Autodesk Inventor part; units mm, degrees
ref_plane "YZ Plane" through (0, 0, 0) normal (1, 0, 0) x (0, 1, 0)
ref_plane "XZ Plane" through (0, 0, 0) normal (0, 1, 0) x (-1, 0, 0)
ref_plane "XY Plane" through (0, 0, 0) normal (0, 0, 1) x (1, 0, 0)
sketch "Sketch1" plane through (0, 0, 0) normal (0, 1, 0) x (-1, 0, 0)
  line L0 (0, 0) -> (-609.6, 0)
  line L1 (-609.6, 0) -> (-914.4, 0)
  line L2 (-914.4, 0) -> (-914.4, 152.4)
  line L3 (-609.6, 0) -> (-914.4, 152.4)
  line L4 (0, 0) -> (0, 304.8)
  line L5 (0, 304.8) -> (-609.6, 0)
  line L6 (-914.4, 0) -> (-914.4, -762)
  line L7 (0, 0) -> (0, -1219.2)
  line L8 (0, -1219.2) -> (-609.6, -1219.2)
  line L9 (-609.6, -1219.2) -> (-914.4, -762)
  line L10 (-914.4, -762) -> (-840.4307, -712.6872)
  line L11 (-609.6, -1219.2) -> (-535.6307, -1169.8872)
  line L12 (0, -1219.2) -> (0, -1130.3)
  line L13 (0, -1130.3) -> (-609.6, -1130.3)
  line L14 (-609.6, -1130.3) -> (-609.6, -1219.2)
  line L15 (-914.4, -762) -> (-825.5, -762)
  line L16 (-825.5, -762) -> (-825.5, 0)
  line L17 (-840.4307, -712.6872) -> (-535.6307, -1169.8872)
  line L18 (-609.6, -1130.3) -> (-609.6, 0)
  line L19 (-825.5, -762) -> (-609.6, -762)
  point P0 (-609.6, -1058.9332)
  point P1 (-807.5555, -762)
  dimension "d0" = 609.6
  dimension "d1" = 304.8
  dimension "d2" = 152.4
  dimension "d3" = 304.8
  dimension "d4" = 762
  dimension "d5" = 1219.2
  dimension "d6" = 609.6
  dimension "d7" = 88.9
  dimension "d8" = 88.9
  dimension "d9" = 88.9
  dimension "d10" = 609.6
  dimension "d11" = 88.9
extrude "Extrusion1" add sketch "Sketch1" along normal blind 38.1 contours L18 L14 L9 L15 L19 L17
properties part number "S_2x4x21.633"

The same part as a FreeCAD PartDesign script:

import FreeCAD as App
import Part
import Sketcher

V = App.Vector
Q = App.Units.Quantity

doc = App.newDocument("Part")
body = doc.addObject("PartDesign::Body", "Body")

# Sketch on XZ plane
sketch1 = body.newObject("Sketcher::SketchObject", "Sketch")
sketch1.AttachmentSupport = (doc.getObject("XZ_Plane"), [""])
sketch1.MapMode = "FlatFace"
sketch1.addGeometry(Part.LineSegment(V(610, -1219, 0), V(610, -1059, 0)), False)
sketch1.addGeometry(Part.LineSegment(V(610, -1059, 0), V(808, -762, 0)), False)
sketch1.addGeometry(Part.LineSegment(V(808, -762, 0), V(914, -762, 0)), False)
sketch1.addGeometry(Part.LineSegment(V(914, -762, 0), V(610, -1219, 0)), False)
sketch1.addConstraint(Sketcher.Constraint("Coincident", 0, 2, 1, 1))
sketch1.addConstraint(Sketcher.Constraint("Coincident", 1, 2, 2, 1))
sketch1.addConstraint(Sketcher.Constraint("Coincident", 2, 2, 3, 1))
sketch1.addConstraint(Sketcher.Constraint("Coincident", 3, 2, 0, 1))
sketch1.addConstraint(Sketcher.Constraint("Vertical", 0))
sketch1.addConstraint(Sketcher.Constraint("Horizontal", 2))
sketch1.addConstraint(Sketcher.Constraint("Parallel", 1, 3))
sketch1.addConstraint(Sketcher.Constraint("DistanceX", -1, 1, 0, 2, Q("24 in")))
sketch1.addConstraint(Sketcher.Constraint("DistanceY", 1, 2, -1, 1, Q("30 in")))
sketch1.addConstraint(Sketcher.Constraint("DistanceY", 3, 2, -1, 1, Q("48 in")))
sketch1.addConstraint(Sketcher.Constraint("DistanceX", 0, 2, 2, 2, Q("12 in")))
sketch1.addConstraint(Sketcher.Constraint("DistanceX", 2, 1, 2, 2, 106.8445))
pad1 = body.newObject("PartDesign::Pad", "Pad")
pad1.Profile = sketch1
pad1.Length = Q("1.5 in")
pad1.Reversed = True

doc.recompute()
